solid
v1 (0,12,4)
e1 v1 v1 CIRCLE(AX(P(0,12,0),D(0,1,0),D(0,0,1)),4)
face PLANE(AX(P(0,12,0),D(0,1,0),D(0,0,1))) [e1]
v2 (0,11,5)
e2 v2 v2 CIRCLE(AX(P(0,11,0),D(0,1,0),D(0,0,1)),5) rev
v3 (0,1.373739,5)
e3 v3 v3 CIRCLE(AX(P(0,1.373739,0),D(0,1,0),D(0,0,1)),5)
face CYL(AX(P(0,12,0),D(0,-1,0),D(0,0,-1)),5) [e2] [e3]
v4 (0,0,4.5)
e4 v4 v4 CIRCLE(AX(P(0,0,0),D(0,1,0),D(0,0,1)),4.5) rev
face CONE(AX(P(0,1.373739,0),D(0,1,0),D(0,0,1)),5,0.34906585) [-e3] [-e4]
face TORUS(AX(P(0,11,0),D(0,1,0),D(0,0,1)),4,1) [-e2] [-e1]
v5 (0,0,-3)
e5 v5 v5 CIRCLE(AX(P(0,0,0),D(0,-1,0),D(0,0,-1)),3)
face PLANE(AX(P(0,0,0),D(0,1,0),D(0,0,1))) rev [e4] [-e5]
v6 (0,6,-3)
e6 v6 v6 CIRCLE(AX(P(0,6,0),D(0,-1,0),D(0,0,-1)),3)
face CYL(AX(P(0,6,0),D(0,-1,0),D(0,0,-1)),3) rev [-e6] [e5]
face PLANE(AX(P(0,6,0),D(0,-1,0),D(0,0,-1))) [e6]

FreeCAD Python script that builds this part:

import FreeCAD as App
import Part
import Sketcher
from FreeCAD import Vector


def edges_at(feature, points):
    """Names of the edges that pass closest to the given points."""
    edges = feature.Shape.Edges
    near = lambda p: min(range(len(edges)), key=lambda i: edges[i].distToShape(Part.Vertex(*p))[0])
    return sorted({f"Edge{near(p) + 1}" for p in points})

doc = App.newDocument("Part")
body = doc.addObject("PartDesign::Body", "Body")

sketch1 = body.newObject("Sketcher::SketchObject", "Sketch")
sketch1.AttachmentSupport = (doc.getObject("XZ_Plane"), [""])
sketch1.MapMode = "FlatFace"
sketch1.addGeometry(Part.Circle(Vector(0, 0, 0), Vector(0, 0, 1), 5), False)
sketch1.addConstraint([
    Sketcher.Constraint("Coincident", 0, 3, -1, 1),
    Sketcher.Constraint("Diameter", 0, 10.0),
])
pad1 = body.newObject("PartDesign::Pad", "Pad")
pad1.Profile = sketch1
pad1.Length = 12
pad1.Reversed = True

sketch2 = body.newObject("Sketcher::SketchObject", "Sketch001")
sketch2.AttachmentSupport = (doc.getObject("XZ_Plane"), [""])
sketch2.MapMode = "FlatFace"
sketch2.addGeometry(Part.Circle(Vector(0, 0, 0), Vector(0, 0, 1), 3), False)
sketch2.addConstraint([
    Sketcher.Constraint("Coincident", 0, 3, -1, 1),
    Sketcher.Constraint("Diameter", 0, 6.0),
])
pocket1 = body.newObject("PartDesign::Pocket", "Pocket")
pocket1.Profile = sketch2
pocket1.Length = 6
doc.recompute()

fillet = body.newObject("PartDesign::Fillet", "Fillet")
fillet.Base = (pocket1, edges_at(pocket1, [(-5, 12, 0)]))
fillet.Radius = 1
doc.recompute()

chamfer = body.newObject("PartDesign::Chamfer", "Chamfer")
chamfer.Base = (fillet, edges_at(fillet, [(-5, 0, 0)]))
chamfer.ChamferType = "Two distances"
chamfer.Size = 0.5
chamfer.Size2 = 1.373739
chamfer.FlipDirection = True

doc.recompute()
